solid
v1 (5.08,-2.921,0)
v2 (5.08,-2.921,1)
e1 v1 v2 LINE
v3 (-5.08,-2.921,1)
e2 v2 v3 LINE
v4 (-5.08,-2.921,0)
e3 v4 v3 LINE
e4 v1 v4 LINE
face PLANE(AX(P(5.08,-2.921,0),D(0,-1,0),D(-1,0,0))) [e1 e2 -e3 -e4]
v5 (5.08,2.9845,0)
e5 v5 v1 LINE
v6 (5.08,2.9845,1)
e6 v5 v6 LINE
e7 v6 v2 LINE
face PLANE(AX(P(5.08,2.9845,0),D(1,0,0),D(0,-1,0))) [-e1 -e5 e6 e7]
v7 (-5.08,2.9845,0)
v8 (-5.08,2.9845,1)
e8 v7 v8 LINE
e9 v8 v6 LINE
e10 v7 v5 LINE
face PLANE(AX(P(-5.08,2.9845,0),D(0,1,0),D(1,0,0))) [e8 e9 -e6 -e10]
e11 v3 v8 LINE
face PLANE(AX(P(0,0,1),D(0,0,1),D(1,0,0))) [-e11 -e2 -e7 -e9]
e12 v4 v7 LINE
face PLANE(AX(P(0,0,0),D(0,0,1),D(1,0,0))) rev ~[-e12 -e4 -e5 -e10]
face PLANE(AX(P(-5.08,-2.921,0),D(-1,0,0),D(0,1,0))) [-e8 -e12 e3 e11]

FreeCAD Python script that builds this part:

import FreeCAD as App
import Part
import Sketcher
from FreeCAD import Vector


def add_polygon(sketch, points):
    """Adds a closed chain of lines whose ends are joined by coincident constraints."""
    first, n = sketch.GeometryCount, len(points)
    for a, b in zip(points, points[1:] + points[:1]):
        sketch.addGeometry(Part.LineSegment(App.Vector(*a, 0), App.Vector(*b, 0)), False)
    for i in range(n):
        sketch.addConstraint(Sketcher.Constraint("Coincident", first + i, 2, first + (i + 1) % n, 1))

doc = App.newDocument("Part")
body = doc.addObject("PartDesign::Body", "Body")

# Sketch on XY plane
sketch1 = doc.addObject("Sketcher::SketchObject", "Sketch")
body.addObject(sketch1)
sketch1.AttachmentSupport = (doc.XY_Plane, [""])
sketch1.MapMode = "FlatFace"
add_polygon(sketch1, [(5, 3), (-5, 3), (-5, -3), (5, -3)])  # lines 0-3
sketch1.addConstraint(Sketcher.Constraint("Horizontal", 0))
sketch1.addConstraint(Sketcher.Constraint("Vertical", 1))
sketch1.addConstraint(Sketcher.Constraint("Horizontal", 2))
sketch1.addConstraint(Sketcher.Constraint("Vertical", 3))
sketch1.addConstraint(Sketcher.Constraint("DistanceX", 0, 2, 0, 1, 10.16))
sketch1.addConstraint(Sketcher.Constraint("DistanceX", 0, 2, -1, 1, 5.08))
sketch1.addConstraint(Sketcher.Constraint("DistanceY", 1, 2, 1, 1, 5.9055))
sketch1.addConstraint(Sketcher.Constraint("DistanceY", 1, 2, -1, 1, 2.921))
pad1 = doc.addObject("PartDesign::Pad", "Pad")
body.addObject(pad1)
pad1.Profile = sketch1
pad1.Length = 1

doc.recompute()
